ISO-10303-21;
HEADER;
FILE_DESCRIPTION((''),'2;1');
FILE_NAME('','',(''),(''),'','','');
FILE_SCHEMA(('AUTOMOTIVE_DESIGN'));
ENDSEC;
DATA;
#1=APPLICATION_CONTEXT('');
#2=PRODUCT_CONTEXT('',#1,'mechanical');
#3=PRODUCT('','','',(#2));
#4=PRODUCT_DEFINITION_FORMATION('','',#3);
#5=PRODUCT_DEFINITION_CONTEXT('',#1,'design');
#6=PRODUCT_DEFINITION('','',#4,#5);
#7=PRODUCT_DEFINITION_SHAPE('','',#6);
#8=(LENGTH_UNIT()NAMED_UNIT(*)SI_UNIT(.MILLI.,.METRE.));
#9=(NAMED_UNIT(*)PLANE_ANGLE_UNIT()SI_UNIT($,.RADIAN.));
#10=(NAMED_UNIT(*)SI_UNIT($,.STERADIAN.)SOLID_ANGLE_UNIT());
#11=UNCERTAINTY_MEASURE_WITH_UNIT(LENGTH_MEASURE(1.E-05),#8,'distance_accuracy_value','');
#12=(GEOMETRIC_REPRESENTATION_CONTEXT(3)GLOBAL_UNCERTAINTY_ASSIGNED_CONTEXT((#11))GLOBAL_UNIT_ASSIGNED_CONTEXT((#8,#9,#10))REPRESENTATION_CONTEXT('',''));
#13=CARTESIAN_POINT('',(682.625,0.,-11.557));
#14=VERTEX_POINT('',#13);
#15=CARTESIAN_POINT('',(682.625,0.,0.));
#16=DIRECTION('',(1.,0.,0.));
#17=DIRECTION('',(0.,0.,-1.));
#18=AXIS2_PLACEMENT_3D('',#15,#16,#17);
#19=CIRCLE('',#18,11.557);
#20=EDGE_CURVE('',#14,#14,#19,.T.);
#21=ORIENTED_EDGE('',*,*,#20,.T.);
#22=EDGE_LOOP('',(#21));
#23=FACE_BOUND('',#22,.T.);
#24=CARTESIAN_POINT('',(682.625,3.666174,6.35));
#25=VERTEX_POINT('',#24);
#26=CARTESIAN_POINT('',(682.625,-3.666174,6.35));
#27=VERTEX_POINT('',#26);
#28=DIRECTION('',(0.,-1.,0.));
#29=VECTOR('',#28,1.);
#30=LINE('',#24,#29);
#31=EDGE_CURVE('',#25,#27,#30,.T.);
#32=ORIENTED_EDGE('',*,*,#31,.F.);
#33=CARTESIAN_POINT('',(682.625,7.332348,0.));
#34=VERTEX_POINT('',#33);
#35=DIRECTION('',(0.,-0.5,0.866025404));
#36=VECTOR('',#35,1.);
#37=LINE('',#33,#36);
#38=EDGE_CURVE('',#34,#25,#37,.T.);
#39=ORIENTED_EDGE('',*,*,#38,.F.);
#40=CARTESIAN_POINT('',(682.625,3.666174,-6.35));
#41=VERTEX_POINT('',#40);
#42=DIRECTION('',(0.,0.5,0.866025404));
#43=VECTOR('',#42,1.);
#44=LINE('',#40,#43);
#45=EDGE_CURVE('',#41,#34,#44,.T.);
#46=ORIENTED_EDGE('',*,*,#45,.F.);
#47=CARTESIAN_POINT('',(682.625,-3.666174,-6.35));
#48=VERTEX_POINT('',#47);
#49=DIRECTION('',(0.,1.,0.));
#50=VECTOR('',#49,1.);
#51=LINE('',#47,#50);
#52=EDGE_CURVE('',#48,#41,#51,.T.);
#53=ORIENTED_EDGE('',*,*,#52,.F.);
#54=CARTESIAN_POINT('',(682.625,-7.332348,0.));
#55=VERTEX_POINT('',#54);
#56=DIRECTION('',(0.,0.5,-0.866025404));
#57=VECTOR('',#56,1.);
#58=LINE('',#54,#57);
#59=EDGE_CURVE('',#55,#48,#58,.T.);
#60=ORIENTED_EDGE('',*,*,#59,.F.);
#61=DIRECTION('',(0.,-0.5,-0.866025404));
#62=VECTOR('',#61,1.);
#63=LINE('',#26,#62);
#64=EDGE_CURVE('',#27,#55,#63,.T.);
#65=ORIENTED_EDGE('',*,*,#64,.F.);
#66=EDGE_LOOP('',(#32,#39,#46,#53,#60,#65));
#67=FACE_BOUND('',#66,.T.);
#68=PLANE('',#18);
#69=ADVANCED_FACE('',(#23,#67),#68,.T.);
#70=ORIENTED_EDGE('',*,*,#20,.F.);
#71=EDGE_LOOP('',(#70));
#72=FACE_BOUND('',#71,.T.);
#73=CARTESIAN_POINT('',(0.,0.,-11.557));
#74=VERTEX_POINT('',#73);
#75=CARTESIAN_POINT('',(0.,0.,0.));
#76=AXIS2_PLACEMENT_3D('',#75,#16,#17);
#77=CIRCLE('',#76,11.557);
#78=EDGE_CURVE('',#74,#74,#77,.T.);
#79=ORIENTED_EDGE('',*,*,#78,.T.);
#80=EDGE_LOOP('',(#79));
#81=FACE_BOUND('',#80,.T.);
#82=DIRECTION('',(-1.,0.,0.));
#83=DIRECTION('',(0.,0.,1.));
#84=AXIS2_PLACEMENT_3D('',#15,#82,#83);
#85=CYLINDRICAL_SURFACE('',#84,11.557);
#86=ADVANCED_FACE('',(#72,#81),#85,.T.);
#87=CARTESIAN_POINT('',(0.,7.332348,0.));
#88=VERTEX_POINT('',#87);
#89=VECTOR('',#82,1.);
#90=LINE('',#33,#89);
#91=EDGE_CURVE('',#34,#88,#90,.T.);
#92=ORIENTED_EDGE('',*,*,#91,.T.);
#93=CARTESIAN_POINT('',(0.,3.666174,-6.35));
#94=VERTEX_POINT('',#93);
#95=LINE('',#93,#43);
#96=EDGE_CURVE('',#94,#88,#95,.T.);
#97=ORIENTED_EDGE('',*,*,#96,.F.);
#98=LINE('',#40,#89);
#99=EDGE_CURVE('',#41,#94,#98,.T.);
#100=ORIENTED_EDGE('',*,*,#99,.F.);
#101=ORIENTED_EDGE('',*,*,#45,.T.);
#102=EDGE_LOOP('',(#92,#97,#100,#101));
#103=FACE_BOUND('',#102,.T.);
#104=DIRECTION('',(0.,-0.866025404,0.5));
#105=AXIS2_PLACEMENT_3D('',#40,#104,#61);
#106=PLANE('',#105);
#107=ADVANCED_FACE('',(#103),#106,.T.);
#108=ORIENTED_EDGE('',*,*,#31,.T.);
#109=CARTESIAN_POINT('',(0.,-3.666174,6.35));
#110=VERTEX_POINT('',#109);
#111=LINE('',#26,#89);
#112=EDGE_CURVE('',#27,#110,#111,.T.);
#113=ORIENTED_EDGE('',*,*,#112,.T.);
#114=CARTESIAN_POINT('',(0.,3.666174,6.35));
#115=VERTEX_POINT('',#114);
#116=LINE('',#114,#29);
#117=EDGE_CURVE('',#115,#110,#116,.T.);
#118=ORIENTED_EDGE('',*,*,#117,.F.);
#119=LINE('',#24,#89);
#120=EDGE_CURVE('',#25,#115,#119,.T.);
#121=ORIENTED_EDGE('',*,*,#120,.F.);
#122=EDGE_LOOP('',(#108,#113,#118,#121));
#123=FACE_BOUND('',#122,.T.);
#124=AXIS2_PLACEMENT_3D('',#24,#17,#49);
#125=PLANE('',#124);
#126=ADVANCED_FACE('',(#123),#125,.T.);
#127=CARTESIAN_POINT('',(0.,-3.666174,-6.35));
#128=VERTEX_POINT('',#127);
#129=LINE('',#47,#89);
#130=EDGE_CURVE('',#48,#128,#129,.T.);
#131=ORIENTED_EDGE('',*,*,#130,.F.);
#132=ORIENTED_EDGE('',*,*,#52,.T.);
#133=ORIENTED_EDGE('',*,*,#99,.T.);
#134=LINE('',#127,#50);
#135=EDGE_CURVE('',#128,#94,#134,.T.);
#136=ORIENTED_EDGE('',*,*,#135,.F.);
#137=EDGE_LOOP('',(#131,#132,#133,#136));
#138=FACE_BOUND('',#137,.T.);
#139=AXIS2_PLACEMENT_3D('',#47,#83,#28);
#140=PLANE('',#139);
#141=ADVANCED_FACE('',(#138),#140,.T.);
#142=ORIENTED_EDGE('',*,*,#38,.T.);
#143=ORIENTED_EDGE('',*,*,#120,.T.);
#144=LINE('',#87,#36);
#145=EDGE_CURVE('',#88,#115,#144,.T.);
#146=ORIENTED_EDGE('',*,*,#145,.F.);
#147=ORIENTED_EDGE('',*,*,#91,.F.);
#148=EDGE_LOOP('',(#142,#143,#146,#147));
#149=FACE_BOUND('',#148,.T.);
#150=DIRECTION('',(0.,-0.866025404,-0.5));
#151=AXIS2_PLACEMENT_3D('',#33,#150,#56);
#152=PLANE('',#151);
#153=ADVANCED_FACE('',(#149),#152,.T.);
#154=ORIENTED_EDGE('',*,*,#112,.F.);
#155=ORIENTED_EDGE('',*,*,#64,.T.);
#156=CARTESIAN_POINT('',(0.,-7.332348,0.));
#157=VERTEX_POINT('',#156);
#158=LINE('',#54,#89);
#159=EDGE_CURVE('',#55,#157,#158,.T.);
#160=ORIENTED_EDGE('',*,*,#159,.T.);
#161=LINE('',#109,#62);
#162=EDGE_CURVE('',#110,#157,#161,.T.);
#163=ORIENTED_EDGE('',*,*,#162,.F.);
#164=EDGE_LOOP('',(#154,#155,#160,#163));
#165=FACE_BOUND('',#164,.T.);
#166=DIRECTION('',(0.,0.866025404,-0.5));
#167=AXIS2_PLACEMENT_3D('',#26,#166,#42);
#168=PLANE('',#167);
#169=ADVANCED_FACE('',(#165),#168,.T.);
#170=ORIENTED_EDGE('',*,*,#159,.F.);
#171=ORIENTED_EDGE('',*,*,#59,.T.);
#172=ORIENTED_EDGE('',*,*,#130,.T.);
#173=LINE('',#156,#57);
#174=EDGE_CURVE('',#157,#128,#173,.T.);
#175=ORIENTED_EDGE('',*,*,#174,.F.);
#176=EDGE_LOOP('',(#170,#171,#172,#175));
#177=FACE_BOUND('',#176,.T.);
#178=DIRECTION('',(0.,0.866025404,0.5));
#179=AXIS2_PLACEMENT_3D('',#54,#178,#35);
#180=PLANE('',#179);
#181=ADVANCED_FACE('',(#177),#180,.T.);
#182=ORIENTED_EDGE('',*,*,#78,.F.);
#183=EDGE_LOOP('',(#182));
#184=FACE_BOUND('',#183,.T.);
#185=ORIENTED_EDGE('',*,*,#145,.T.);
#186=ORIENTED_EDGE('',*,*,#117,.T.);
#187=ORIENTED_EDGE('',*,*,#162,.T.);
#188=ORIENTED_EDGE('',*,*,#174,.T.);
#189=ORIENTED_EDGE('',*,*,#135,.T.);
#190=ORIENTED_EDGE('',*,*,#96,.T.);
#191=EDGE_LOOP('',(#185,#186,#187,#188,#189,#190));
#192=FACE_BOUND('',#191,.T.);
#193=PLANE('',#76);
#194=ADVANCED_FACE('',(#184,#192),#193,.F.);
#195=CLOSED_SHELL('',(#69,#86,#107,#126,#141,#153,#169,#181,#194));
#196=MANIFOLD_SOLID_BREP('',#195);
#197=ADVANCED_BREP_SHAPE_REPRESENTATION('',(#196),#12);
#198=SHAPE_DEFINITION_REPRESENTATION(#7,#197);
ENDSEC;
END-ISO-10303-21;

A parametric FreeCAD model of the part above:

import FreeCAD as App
import Part
import Sketcher
from FreeCAD import Vector
Q = App.Units.Quantity


def add_polygon(sketch, points):
    """Adds a closed chain of lines whose ends are joined by coincident constraints."""
    first, n = sketch.GeometryCount, len(points)
    for a, b in zip(points, points[1:] + points[:1]):
        sketch.addGeometry(Part.LineSegment(App.Vector(*a, 0), App.Vector(*b, 0)), False)
    for i in range(n):
        sketch.addConstraint(Sketcher.Constraint("Coincident", first + i, 2, first + (i + 1) % n, 1))

doc = App.newDocument("Part")
body = doc.addObject("PartDesign::Body", "Body")

# Sketch on YZ plane
sketch1 = doc.addObject("Sketcher::SketchObject", "Sketch")
body.addObject(sketch1)
sketch1.AttachmentSupport = (doc.YZ_Plane, [""])
sketch1.MapMode = "FlatFace"
sketch1.addGeometry(Part.Circle(Vector(0, 0, 0), Vector(0, 0, 1), 12), False)  # 0
add_polygon(sketch1, [(4, 6), (7, 0), (4, -6), (-4, -6), (-7, 0), (-4, 6)])  # lines 1-6
sketch1.addConstraint([
    Sketcher.Constraint("Horizontal", 3),
    Sketcher.Constraint("Horizontal", 6),
    Sketcher.Constraint("Coincident", 0, 3, -1, 1),
    Sketcher.Constraint("Symmetric", 1, 2, 4, 2, -1, 1),
    Sketcher.Constraint("Symmetric", 2, 2, 5, 2, -1, 1),
    Sketcher.Constraint("PointOnObject", 1, 2, -1),
    Sketcher.Constraint("Parallel", 1, 4),
    Sketcher.Constraint("Vertical", 3, 2, 5, 2),
    Sketcher.Constraint("Diameter", 0, Q("0.91 in")),
    Sketcher.Constraint("Angle", 1, Q("-60 deg")),
    Sketcher.Constraint("DistanceY", 3, 2, 5, 2, Q("0.5 in")),
    Sketcher.Constraint("DistanceX", 3, 2, 3, 1, Q("7.332348 mm")),
])
pad1 = doc.addObject("PartDesign::Pad", "Pad")
body.addObject(pad1)
pad1.Profile = sketch1
pad1.Length = Q("26.875 in")

doc.recompute()
